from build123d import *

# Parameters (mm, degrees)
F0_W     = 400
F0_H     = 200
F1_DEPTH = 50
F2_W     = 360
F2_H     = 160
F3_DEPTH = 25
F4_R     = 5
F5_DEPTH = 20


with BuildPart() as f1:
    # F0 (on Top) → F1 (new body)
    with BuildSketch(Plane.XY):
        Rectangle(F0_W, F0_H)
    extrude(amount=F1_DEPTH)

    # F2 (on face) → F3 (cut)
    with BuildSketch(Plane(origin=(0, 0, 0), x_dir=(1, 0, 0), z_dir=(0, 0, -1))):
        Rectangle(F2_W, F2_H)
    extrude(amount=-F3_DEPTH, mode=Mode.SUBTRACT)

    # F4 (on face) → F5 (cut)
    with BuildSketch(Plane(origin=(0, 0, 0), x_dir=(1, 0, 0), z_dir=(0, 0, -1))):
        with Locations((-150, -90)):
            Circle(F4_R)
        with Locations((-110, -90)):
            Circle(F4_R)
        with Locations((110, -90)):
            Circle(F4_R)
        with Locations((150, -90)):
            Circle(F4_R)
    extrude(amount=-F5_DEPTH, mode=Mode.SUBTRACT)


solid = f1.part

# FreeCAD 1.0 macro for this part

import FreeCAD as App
import Part
import Sketcher
from FreeCAD import Vector
Q = App.Units.Quantity

doc = App.newDocument("Part")
body = doc.addObject("PartDesign::Body", "Body")

# Sketch on XY plane
sketch1 = doc.addObject("Sketcher::SketchObject", "Sketch")
body.addObject(sketch1)
sketch1.AttachmentSupport = (doc.XY_Plane, [""])
sketch1.MapMode = "FlatFace"
sketch1.addGeometry(Part.LineSegment(Vector(-200, 100, 0), Vector(-200, -100, 0)), False)
sketch1.addGeometry(Part.LineSegment(Vector(-200, -100, 0), Vector(200, -100, 0)), False)
sketch1.addGeometry(Part.LineSegment(Vector(200, -100, 0), Vector(200, 100, 0)), False)
sketch1.addGeometry(Part.LineSegment(Vector(200, 100, 0), Vector(-200, 100, 0)), False)
sketch1.addConstraint(Sketcher.Constraint("Coincident", 0, 2, 1, 1))
sketch1.addConstraint(Sketcher.Constraint("Coincident", 1, 2, 2, 1))
sketch1.addConstraint(Sketcher.Constraint("Coincident", 2, 2, 3, 1))
sketch1.addConstraint(Sketcher.Constraint("Coincident", 3, 2, 0, 1))
sketch1.addConstraint(Sketcher.Constraint("Vertical", 0))
sketch1.addConstraint(Sketcher.Constraint("Horizontal", 1))
sketch1.addConstraint(Sketcher.Constraint("Vertical", 2))
sketch1.addConstraint(Sketcher.Constraint("Horizontal", 3))
sketch1.addConstraint(Sketcher.Constraint("Symmetric", 0, 2, 2, 2, -1, 1))
sketch1.addConstraint(Sketcher.Constraint("DistanceX", 1, 1, 1, 2, Q("400 mm")))
sketch1.addConstraint(Sketcher.Constraint("DistanceY", 0, 2, 0, 1, Q("200 mm")))
pad1 = doc.addObject("PartDesign::Pad", "Pad")
body.addObject(pad1)
pad1.Profile = sketch1
pad1.Length = 50

# Sketch on XY plane
sketch2 = doc.addObject("Sketcher::SketchObject", "Sketch001")
body.addObject(sketch2)
sketch2.AttachmentSupport = (doc.XY_Plane, [""])
sketch2.MapMode = "FlatFace"
sketch2.addGeometry(Part.LineSegment(Vector(-180, -80, 0), Vector(-180, 80, 0)), False)
sketch2.addGeometry(Part.LineSegment(Vector(-180, 80, 0), Vector(180, 80, 0)), False)
sketch2.addGeometry(Part.LineSegment(Vector(180, 80, 0), Vector(180, -80, 0)), False)
sketch2.addGeometry(Part.LineSegment(Vector(180, -80, 0), Vector(-180, -80, 0)), False)
sketch2.addConstraint(Sketcher.Constraint("Coincident", 0, 2, 1, 1))
sketch2.addConstraint(Sketcher.Constraint("Coincident", 1, 2, 2, 1))
sketch2.addConstraint(Sketcher.Constraint("Coincident", 2, 2, 3, 1))
sketch2.addConstraint(Sketcher.Constraint("Coincident", 3, 2, 0, 1))
sketch2.addConstraint(Sketcher.Constraint("Vertical", 0))
sketch2.addConstraint(Sketcher.Constraint("Horizontal", 1))
sketch2.addConstraint(Sketcher.Constraint("Vertical", 2))
sketch2.addConstraint(Sketcher.Constraint("Horizontal", 3))
sketch2.addConstraint(Sketcher.Constraint("Symmetric", 0, 2, 2, 2, -1, 1))
sketch2.addConstraint(Sketcher.Constraint("DistanceX", 1, 1, 1, 2, Q("360 mm")))
sketch2.addConstraint(Sketcher.Constraint("DistanceY", 0, 1, 0, 2, Q("160 mm")))
pocket1 = doc.addObject("PartDesign::Pocket", "Pocket")
body.addObject(pocket1)
pocket1.Profile = sketch2
pocket1.Length = 25
pocket1.Reversed = True

# Sketch on XY plane
sketch3 = doc.addObject("Sketcher::SketchObject", "Sketch002")
body.addObject(sketch3)
sketch3.AttachmentSupport = (doc.XY_Plane, [""])
sketch3.MapMode = "FlatFace"
sketch3.addGeometry(Part.Circle(Vector(-150, 90, 0), Vector(0, 0, 1), 5), False)
sketch3.addGeometry(Part.Circle(Vector(-110, 90, 0), Vector(0, 0, 1), 5), False)
sketch3.addGeometry(Part.Circle(Vector(110, 90, 0), Vector(0, 0, 1), 5), False)
sketch3.addGeometry(Part.Circle(Vector(150, 90, 0), Vector(0, 0, 1), 5), False)
sketch3.addConstraint(Sketcher.Constraint("Equal", 0, 1))
sketch3.addConstraint(Sketcher.Constraint("Equal", 1, 2))
sketch3.addConstraint(Sketcher.Constraint("Equal", 2, 3))
sketch3.addConstraint(Sketcher.Constraint("Symmetric", 1, 3, 2, 3, -2))
sketch3.addConstraint(Sketcher.Constraint("Symmetric", 0, 3, 3, 3, -2))
sketch3.addConstraint(Sketcher.Constraint("Horizontal", 0, 3, 1, 3))
sketch3.addConstraint(Sketcher.Constraint("Diameter", 0, Q("10 mm")))
sketch3.addConstraint(Sketcher.Constraint("DistanceX", 0, 3, -1, 1, Q("150 mm")))
sketch3.addConstraint(Sketcher.Constraint("DistanceY", -1, 1, 0, 3, Q("90 mm")))
sketch3.addConstraint(Sketcher.Constraint("DistanceX", 1, 3, -1, 1, Q("110 mm")))
pocket2 = doc.addObject("PartDesign::Pocket", "Pocket001")
body.addObject(pocket2)
pocket2.Profile = sketch3
pocket2.Length = 20
pocket2.Reversed = True

doc.recompute()
